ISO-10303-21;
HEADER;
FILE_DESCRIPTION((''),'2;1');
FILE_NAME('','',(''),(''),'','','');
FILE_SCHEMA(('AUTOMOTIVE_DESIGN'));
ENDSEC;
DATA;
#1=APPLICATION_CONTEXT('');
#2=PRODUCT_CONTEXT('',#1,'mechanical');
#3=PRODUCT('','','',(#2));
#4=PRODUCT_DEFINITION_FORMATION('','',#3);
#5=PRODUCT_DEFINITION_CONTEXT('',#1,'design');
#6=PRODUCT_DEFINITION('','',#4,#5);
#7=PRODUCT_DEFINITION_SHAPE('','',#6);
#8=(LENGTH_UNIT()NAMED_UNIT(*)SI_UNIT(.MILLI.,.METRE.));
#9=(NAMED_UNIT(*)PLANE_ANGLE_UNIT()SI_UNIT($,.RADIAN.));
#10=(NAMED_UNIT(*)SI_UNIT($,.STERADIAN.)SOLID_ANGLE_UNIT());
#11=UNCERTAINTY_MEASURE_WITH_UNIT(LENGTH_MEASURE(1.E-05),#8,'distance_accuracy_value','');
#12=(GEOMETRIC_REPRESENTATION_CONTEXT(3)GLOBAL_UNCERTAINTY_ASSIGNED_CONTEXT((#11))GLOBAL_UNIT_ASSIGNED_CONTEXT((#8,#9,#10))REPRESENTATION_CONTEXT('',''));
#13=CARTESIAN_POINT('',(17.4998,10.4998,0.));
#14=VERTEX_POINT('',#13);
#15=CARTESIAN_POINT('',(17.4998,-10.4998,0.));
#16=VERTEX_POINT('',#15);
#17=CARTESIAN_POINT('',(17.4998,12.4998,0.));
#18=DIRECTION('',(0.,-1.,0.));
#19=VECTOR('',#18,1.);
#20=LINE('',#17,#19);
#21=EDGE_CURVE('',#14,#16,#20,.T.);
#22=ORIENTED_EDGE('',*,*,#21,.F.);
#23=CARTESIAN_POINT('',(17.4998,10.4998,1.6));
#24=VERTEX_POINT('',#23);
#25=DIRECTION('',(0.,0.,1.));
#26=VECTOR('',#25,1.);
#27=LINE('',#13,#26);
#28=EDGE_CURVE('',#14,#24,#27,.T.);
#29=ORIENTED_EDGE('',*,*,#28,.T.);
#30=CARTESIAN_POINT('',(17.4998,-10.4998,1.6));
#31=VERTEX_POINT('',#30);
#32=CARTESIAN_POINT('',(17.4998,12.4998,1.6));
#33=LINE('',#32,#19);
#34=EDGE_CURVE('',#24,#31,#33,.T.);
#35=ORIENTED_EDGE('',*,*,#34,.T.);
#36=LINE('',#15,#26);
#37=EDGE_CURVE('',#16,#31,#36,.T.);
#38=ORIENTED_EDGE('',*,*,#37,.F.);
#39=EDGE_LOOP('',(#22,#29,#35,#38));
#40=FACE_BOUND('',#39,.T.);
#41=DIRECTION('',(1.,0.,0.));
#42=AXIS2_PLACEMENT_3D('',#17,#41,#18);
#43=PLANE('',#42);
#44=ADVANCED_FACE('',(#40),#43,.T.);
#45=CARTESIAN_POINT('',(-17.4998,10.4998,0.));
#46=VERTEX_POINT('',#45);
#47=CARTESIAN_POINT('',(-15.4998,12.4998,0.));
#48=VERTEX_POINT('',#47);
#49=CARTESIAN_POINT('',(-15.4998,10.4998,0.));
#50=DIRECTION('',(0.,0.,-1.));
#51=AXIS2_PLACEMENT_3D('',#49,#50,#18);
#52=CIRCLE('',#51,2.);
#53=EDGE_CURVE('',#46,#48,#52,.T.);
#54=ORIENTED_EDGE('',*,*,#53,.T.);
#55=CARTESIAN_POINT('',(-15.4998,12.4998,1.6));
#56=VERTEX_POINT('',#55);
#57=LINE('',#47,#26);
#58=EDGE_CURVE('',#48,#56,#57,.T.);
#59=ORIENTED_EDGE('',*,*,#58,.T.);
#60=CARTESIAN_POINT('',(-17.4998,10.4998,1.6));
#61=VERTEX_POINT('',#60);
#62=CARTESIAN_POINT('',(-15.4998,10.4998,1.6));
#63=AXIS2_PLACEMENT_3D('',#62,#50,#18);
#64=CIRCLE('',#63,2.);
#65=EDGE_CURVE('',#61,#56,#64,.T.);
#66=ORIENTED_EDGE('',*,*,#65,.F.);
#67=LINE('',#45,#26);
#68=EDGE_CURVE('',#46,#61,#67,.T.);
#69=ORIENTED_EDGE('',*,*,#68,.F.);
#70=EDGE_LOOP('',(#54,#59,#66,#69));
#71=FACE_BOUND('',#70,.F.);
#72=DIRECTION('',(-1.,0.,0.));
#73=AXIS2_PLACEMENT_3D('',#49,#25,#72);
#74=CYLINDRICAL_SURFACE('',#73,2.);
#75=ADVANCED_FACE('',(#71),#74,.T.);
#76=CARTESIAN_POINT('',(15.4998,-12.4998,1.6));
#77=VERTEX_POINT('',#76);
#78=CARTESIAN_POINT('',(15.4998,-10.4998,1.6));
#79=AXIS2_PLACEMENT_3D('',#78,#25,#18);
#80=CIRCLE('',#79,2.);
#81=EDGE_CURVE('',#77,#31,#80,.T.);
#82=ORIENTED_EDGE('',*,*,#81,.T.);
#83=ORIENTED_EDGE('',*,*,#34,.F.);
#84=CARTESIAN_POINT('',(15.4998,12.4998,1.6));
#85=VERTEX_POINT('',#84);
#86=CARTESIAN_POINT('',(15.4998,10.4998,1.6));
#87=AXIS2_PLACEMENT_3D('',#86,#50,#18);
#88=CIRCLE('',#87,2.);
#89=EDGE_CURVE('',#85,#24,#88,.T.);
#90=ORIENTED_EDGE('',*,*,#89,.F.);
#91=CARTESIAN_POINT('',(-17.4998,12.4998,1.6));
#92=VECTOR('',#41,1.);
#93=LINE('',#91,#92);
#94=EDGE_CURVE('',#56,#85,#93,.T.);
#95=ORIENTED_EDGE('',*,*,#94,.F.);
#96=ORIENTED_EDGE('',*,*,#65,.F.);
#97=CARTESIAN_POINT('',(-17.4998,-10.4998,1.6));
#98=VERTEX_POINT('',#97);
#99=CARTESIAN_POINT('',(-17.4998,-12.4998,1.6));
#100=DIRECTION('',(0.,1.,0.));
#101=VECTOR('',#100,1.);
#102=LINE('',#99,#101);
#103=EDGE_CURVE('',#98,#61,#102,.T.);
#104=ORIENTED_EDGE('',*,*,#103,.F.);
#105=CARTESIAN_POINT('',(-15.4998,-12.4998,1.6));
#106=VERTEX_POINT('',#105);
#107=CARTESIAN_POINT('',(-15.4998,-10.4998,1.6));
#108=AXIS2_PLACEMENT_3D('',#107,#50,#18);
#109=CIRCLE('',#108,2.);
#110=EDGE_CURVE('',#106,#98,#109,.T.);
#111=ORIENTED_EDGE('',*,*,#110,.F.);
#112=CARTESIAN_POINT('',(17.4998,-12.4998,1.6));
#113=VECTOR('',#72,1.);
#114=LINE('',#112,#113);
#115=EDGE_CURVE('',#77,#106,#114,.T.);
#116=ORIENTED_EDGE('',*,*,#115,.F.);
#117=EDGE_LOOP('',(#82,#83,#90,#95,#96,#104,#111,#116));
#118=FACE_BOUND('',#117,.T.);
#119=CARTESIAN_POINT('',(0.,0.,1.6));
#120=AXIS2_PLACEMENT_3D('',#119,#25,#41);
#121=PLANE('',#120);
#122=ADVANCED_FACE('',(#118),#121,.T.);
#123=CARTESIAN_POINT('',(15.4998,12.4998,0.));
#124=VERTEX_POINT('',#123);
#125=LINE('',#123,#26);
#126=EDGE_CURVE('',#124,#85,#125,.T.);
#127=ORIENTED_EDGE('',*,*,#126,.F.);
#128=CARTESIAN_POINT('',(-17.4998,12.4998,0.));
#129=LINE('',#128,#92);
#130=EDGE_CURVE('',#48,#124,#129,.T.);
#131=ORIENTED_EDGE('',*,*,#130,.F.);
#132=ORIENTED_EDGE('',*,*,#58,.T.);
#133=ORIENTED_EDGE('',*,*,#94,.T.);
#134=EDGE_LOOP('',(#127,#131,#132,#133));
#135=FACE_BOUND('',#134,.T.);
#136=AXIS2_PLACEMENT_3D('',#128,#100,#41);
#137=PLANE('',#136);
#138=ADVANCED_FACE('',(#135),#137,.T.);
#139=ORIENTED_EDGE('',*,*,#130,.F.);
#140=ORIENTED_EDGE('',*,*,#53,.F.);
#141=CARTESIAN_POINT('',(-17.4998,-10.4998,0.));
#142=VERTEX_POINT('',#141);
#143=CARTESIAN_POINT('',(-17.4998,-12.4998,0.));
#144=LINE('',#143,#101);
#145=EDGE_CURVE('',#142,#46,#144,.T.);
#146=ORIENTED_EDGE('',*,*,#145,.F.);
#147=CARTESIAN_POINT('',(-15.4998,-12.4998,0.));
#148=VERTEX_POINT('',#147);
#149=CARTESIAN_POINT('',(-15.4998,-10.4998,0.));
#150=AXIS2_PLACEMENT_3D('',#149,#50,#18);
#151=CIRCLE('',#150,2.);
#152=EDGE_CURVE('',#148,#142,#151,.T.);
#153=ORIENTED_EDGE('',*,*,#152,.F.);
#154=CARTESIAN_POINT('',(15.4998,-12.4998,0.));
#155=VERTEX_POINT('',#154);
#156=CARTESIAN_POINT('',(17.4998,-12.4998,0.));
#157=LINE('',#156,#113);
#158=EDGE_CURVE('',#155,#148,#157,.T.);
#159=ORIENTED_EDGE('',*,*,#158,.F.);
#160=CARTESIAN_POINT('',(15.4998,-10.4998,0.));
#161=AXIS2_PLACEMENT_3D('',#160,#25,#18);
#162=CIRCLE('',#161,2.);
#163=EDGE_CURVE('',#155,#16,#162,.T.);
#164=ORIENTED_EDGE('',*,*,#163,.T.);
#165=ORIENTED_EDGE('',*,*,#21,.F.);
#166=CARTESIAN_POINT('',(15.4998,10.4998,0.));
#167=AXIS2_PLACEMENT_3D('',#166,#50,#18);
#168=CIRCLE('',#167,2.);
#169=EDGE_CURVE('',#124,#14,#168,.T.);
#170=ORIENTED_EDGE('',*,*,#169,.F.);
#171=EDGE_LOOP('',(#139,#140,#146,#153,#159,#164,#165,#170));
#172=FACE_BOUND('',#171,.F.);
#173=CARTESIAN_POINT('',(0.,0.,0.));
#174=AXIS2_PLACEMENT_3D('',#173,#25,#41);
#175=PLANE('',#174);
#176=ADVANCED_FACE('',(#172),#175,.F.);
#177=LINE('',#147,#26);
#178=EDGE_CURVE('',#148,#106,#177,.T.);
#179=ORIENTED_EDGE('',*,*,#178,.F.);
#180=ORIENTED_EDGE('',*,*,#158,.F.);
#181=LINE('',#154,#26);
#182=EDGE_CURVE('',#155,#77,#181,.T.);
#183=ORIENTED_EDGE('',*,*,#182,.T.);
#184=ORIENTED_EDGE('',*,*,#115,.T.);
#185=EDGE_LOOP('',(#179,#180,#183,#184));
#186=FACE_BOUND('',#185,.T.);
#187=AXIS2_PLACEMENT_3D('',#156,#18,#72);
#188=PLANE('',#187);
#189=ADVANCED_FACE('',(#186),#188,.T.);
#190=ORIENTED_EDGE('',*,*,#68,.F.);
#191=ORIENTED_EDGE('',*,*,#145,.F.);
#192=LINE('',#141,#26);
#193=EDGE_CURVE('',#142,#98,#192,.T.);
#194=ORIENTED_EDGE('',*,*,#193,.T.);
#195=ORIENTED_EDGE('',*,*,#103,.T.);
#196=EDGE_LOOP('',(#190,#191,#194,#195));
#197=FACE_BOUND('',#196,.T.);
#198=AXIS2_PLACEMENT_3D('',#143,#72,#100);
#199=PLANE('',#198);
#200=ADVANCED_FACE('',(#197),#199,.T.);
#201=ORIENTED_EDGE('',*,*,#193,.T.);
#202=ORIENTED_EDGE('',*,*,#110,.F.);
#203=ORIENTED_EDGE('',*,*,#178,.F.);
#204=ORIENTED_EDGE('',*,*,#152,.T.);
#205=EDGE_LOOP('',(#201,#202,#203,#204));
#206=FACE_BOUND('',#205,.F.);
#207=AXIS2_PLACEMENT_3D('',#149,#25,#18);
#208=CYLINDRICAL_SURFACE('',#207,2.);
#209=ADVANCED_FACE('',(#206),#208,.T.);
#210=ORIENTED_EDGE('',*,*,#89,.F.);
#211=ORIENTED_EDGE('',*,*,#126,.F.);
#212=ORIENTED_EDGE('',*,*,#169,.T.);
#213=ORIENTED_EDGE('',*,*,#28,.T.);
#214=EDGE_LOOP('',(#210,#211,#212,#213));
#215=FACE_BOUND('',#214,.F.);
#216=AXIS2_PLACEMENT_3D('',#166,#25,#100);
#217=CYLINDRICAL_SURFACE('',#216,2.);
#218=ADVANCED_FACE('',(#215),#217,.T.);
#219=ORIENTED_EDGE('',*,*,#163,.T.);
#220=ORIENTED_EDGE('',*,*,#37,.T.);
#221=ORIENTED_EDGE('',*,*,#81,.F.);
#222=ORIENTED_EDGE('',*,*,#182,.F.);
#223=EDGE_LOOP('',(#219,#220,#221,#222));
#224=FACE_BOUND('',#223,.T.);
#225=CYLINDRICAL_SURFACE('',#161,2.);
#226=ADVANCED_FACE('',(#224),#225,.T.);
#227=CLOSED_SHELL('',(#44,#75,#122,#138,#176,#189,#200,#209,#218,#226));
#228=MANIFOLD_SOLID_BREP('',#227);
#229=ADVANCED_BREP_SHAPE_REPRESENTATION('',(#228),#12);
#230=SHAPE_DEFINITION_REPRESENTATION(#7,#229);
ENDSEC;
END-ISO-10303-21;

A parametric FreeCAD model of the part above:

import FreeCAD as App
import Part
import Sketcher
Q = App.Units.Quantity


def edges_at(feature, points):
    """Names of the edges that pass closest to the given points."""
    edges = feature.Shape.Edges
    near = lambda p: min(range(len(edges)), key=lambda i: edges[i].distToShape(Part.Vertex(*p))[0])
    return sorted({f"Edge{near(p) + 1}" for p in points})

doc = App.newDocument("Part")
body = doc.addObject("PartDesign::Body", "Body")

sketch1 = body.newObject("Sketcher::SketchObject", "Sketch")
sketch1.AttachmentSupport = (doc.getObject("XY_Plane"), [""])
sketch1.MapMode = "FlatFace"
sketch1.addGeometry([
    Part.LineSegment(App.Vector(-17, -12, 0), App.Vector(17, -12, 0)),
    Part.LineSegment(App.Vector(17, -12, 0), App.Vector(17, 12, 0)),
    Part.LineSegment(App.Vector(17, 12, 0), App.Vector(-17, 12, 0)),
    Part.LineSegment(App.Vector(-17, 12, 0), App.Vector(-17, -12, 0)),
], False)
sketch1.addConstraint([
    Sketcher.Constraint("Coincident", 0, 2, 1, 1),
    Sketcher.Constraint("Coincident", 1, 2, 2, 1),
    Sketcher.Constraint("Coincident", 2, 2, 3, 1),
    Sketcher.Constraint("Coincident", 3, 2, 0, 1),
    Sketcher.Constraint("Horizontal", 0),
    Sketcher.Constraint("Vertical", 1),
    Sketcher.Constraint("Horizontal", 2),
    Sketcher.Constraint("Vertical", 3),
    Sketcher.Constraint("Symmetric", 0, 2, 2, 2, -1, 1),
    Sketcher.Constraint("DistanceX", 0, 1, 0, 2, Q("34.9996 mm")),
    Sketcher.Constraint("DistanceY", 1, 1, 1, 2, Q("24.9996 mm")),
])
pad1 = body.newObject("PartDesign::Pad", "Pad")
pad1.Profile = sketch1
pad1.Length = 1.6
doc.recompute()

fillet = body.newObject("PartDesign::Fillet", "Fillet")
fillet.Base = (pad1, edges_at(pad1, [
    (-17.5, -12.5, 0.8),
    (17.5, -12.5, 0.8),
    (17.5, 12.5, 0.8),
    (-17.5, 12.5, 0.8),
]))
fillet.Radius = 2

doc.recompute()
